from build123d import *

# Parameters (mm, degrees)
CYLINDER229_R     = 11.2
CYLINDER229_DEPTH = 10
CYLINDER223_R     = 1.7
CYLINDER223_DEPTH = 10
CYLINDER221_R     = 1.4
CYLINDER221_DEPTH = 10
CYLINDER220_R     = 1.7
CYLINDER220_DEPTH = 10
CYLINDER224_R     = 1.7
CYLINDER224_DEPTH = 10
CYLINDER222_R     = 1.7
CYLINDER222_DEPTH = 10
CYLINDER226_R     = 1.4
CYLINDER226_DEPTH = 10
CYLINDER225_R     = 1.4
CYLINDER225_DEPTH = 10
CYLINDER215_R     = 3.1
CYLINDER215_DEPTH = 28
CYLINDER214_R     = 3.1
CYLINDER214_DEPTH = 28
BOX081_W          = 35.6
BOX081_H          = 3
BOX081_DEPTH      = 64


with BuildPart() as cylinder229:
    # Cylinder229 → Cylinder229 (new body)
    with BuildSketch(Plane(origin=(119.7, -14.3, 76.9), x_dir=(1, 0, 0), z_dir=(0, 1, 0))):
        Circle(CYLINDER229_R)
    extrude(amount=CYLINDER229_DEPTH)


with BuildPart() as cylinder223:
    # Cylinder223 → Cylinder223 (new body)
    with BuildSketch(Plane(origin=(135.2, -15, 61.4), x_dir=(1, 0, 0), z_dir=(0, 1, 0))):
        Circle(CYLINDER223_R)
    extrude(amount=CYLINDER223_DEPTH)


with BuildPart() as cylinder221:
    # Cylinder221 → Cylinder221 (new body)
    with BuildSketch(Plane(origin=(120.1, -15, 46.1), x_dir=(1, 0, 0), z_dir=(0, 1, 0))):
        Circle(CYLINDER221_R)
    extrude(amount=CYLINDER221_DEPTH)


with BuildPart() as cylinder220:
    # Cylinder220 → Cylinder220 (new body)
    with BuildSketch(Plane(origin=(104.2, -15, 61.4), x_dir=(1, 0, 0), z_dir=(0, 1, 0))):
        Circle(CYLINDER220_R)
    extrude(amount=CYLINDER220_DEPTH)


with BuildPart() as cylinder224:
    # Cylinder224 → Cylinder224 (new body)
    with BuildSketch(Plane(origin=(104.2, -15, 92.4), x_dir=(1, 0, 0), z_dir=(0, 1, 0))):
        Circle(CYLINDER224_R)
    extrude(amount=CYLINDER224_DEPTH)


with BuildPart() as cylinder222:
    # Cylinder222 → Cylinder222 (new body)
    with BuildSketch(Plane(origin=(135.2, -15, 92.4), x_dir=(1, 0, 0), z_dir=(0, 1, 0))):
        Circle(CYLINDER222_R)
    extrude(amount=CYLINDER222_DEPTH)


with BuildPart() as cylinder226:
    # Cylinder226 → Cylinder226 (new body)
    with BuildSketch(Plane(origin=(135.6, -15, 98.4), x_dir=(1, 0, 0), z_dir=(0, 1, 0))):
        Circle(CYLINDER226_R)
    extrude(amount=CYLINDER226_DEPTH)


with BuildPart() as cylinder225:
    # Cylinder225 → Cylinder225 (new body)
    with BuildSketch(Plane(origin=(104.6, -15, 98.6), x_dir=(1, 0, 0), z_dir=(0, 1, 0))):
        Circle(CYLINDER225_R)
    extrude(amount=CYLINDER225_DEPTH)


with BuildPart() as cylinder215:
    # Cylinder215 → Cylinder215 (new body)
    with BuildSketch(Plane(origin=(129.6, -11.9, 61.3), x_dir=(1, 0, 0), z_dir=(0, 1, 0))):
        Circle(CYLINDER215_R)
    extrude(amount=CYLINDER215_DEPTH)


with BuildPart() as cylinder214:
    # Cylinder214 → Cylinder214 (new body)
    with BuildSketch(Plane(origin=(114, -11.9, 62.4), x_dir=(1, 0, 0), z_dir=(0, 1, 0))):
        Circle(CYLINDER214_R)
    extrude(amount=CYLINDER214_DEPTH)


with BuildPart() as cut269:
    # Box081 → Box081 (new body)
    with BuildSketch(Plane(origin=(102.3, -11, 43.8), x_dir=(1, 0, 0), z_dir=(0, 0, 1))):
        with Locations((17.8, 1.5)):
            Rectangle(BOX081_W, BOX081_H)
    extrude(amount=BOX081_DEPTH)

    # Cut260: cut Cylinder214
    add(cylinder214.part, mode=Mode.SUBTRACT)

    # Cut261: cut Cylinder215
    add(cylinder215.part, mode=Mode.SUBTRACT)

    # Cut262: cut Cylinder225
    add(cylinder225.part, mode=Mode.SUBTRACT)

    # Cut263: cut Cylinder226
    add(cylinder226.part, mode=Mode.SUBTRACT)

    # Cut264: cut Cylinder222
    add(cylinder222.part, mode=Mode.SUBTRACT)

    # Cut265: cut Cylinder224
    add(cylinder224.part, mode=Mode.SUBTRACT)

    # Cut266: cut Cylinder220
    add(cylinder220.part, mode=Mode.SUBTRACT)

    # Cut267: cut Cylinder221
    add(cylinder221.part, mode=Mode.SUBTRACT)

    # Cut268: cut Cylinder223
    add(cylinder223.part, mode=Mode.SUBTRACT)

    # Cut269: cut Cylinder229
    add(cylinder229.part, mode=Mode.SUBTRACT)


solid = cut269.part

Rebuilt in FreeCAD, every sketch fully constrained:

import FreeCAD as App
import Part
import Sketcher

V = App.Vector
Q = App.Units.Quantity

doc = App.newDocument("Part")
params = doc.addObject("Spreadsheet::Sheet", "Params")
for row, (alias, value) in enumerate([
    ("sketch1_diameter", "22.4 mm"),
    ("pad1_length", "10 mm"),
    ("sketch2_diameter", "3.4 mm"),
    ("pad2_length", "10 mm"),
    ("sketch3_diameter", "2.8 mm"),
    ("pad3_length", "10 mm"),
    ("sketch4_diameter", "3.4 mm"),
    ("pad4_length", "10 mm"),
    ("sketch5_diameter", "3.4 mm"),
    ("pad5_length", "10 mm"),
    ("sketch6_diameter", "3.4 mm"),
    ("pad6_length", "10 mm"),
    ("sketch7_diameter", "2.8 mm"),
    ("pad7_length", "10 mm"),
    ("sketch8_diameter", "2.8 mm"),
    ("pad8_length", "10 mm"),
    ("sketch9_diameter", "6.2 mm"),
    ("pad9_length", "28 mm"),
    ("sketch10_diameter", "6.2 mm"),
    ("pad10_length", "28 mm"),
    ("sketch11_height", "3 mm"),
    ("sketch11_width", "35.6 mm"),
    ("pad11_length", "64 mm"),
], start=1):
    params.set(f"A{row}", alias)
    params.set(f"B{row}", "=" + value)
    params.setAlias(f"B{row}", alias)

body = doc.addObject("PartDesign::Body", "Body")

sketch1 = doc.addObject("Sketcher::SketchObject", "Sketch")
body.addObject(sketch1)
sketch1.AttachmentSupport = (doc.XZ_Plane, [""])
sketch1.MapMode = "FlatFace"
sketch1.AttachmentOffset = App.Placement(V(0, 0, 14.3), App.Rotation())
sketch1.addGeometry(Part.Circle(V(120, 77, 0), V(0, 0, 1), 11), False)
sketch1.addConstraint([
    Sketcher.Constraint("Diameter", 0, Q("22.4 mm")),
    Sketcher.Constraint("DistanceX", -1, 1, 0, 3, Q("119.7 mm")),
    Sketcher.Constraint("DistanceY", -1, 1, 0, 3, Q("76.9 mm")),
])
sketch1.setExpression("Constraints[0]", "Params.sketch1_diameter")
pad1 = doc.addObject("PartDesign::Pad", "Pad")
body.addObject(pad1)
pad1.Profile = sketch1
pad1.setExpression("Length", "Params.pad1_length")
pad1.Reversed = True
body2 = doc.addObject("PartDesign::Body", "Body001")

sketch2 = doc.addObject("Sketcher::SketchObject", "Sketch001")
body2.addObject(sketch2)
sketch2.AttachmentSupport = (doc.getObject("XZ_Plane001"), [""])
sketch2.MapMode = "FlatFace"
sketch2.AttachmentOffset = App.Placement(V(0, 0, 15), App.Rotation())
sketch2.addGeometry(Part.Circle(V(135.2, 61.4, 0), V(0, 0, 1), 1.7), False)
sketch2.addConstraint([
    Sketcher.Constraint("Diameter", 0, Q("3.4 mm")),
    Sketcher.Constraint("DistanceX", -1, 1, 0, 3, Q("135.2 mm")),
    Sketcher.Constraint("DistanceY", -1, 1, 0, 3, Q("61.4 mm")),
])
sketch2.setExpression("Constraints[0]", "Params.sketch2_diameter")
pad2 = doc.addObject("PartDesign::Pad", "Pad001")
body2.addObject(pad2)
pad2.Profile = sketch2
pad2.setExpression("Length", "Params.pad2_length")
pad2.Reversed = True
body3 = doc.addObject("PartDesign::Body", "Body002")

sketch3 = doc.addObject("Sketcher::SketchObject", "Sketch002")
body3.addObject(sketch3)
sketch3.AttachmentSupport = (doc.getObject("XZ_Plane002"), [""])
sketch3.MapMode = "FlatFace"
sketch3.AttachmentOffset = App.Placement(V(0, 0, 15), App.Rotation())
sketch3.addGeometry(Part.Circle(V(120.1, 46.1, 0), V(0, 0, 1), 1.4), False)
sketch3.addConstraint([
    Sketcher.Constraint("Diameter", 0, Q("2.8 mm")),
    Sketcher.Constraint("DistanceX", -1, 1, 0, 3, Q("120.1 mm")),
    Sketcher.Constraint("DistanceY", -1, 1, 0, 3, Q("46.1 mm")),
])
sketch3.setExpression("Constraints[0]", "Params.sketch3_diameter")
pad3 = doc.addObject("PartDesign::Pad", "Pad002")
body3.addObject(pad3)
pad3.Profile = sketch3
pad3.setExpression("Length", "Params.pad3_length")
pad3.Reversed = True
body4 = doc.addObject("PartDesign::Body", "Body003")

sketch4 = doc.addObject("Sketcher::SketchObject", "Sketch003")
body4.addObject(sketch4)
sketch4.AttachmentSupport = (doc.getObject("XZ_Plane003"), [""])
sketch4.MapMode = "FlatFace"
sketch4.AttachmentOffset = App.Placement(V(0, 0, 15), App.Rotation())
sketch4.addGeometry(Part.Circle(V(104.2, 61.4, 0), V(0, 0, 1), 1.7), False)
sketch4.addConstraint([
    Sketcher.Constraint("Diameter", 0, Q("3.4 mm")),
    Sketcher.Constraint("DistanceX", -1, 1, 0, 3, Q("104.2 mm")),
    Sketcher.Constraint("DistanceY", -1, 1, 0, 3, Q("61.4 mm")),
])
sketch4.setExpression("Constraints[0]", "Params.sketch4_diameter")
pad4 = doc.addObject("PartDesign::Pad", "Pad003")
body4.addObject(pad4)
pad4.Profile = sketch4
pad4.setExpression("Length", "Params.pad4_length")
pad4.Reversed = True
body5 = doc.addObject("PartDesign::Body", "Body004")

sketch5 = doc.addObject("Sketcher::SketchObject", "Sketch004")
body5.addObject(sketch5)
sketch5.AttachmentSupport = (doc.getObject("XZ_Plane004"), [""])
sketch5.MapMode = "FlatFace"
sketch5.AttachmentOffset = App.Placement(V(0, 0, 15), App.Rotation())
sketch5.addGeometry(Part.Circle(V(104.2, 92.4, 0), V(0, 0, 1), 1.7), False)
sketch5.addConstraint([
    Sketcher.Constraint("Diameter", 0, Q("3.4 mm")),
    Sketcher.Constraint("DistanceX", -1, 1, 0, 3, Q("104.2 mm")),
    Sketcher.Constraint("DistanceY", -1, 1, 0, 3, Q("92.4 mm")),
])
sketch5.setExpression("Constraints[0]", "Params.sketch5_diameter")
pad5 = doc.addObject("PartDesign::Pad", "Pad004")
body5.addObject(pad5)
pad5.Profile = sketch5
pad5.setExpression("Length", "Params.pad5_length")
pad5.Reversed = True
body6 = doc.addObject("PartDesign::Body", "Body005")

sketch6 = doc.addObject("Sketcher::SketchObject", "Sketch005")
body6.addObject(sketch6)
sketch6.AttachmentSupport = (doc.getObject("XZ_Plane005"), [""])
sketch6.MapMode = "FlatFace"
sketch6.AttachmentOffset = App.Placement(V(0, 0, 15), App.Rotation())
sketch6.addGeometry(Part.Circle(V(135.2, 92.4, 0), V(0, 0, 1), 1.7), False)
sketch6.addConstraint([
    Sketcher.Constraint("Diameter", 0, Q("3.4 mm")),
    Sketcher.Constraint("DistanceX", -1, 1, 0, 3, Q("135.2 mm")),
    Sketcher.Constraint("DistanceY", -1, 1, 0, 3, Q("92.4 mm")),
])
sketch6.setExpression("Constraints[0]", "Params.sketch6_diameter")
pad6 = doc.addObject("PartDesign::Pad", "Pad005")
body6.addObject(pad6)
pad6.Profile = sketch6
pad6.setExpression("Length", "Params.pad6_length")
pad6.Reversed = True
body7 = doc.addObject("PartDesign::Body", "Body006")

sketch7 = doc.addObject("Sketcher::SketchObject", "Sketch006")
body7.addObject(sketch7)
sketch7.AttachmentSupport = (doc.getObject("XZ_Plane006"), [""])
sketch7.MapMode = "FlatFace"
sketch7.AttachmentOffset = App.Placement(V(0, 0, 15), App.Rotation())
sketch7.addGeometry(Part.Circle(V(135.6, 98.4, 0), V(0, 0, 1), 1.4), False)
sketch7.addConstraint([
    Sketcher.Constraint("Diameter", 0, Q("2.8 mm")),
    Sketcher.Constraint("DistanceX", -1, 1, 0, 3, Q("135.6 mm")),
    Sketcher.Constraint("DistanceY", -1, 1, 0, 3, Q("98.4 mm")),
])
sketch7.setExpression("Constraints[0]", "Params.sketch7_diameter")
pad7 = doc.addObject("PartDesign::Pad", "Pad006")
body7.addObject(pad7)
pad7.Profile = sketch7
pad7.setExpression("Length", "Params.pad7_length")
pad7.Reversed = True
body8 = doc.addObject("PartDesign::Body", "Body007")

sketch8 = doc.addObject("Sketcher::SketchObject", "Sketch007")
body8.addObject(sketch8)
sketch8.AttachmentSupport = (doc.getObject("XZ_Plane007"), [""])
sketch8.MapMode = "FlatFace"
sketch8.AttachmentOffset = App.Placement(V(0, 0, 15), App.Rotation())
sketch8.addGeometry(Part.Circle(V(104.6, 98.6, 0), V(0, 0, 1), 1.4), False)
sketch8.addConstraint([
    Sketcher.Constraint("Diameter", 0, Q("2.8 mm")),
    Sketcher.Constraint("DistanceX", -1, 1, 0, 3, Q("104.6 mm")),
    Sketcher.Constraint("DistanceY", -1, 1, 0, 3, Q("98.6 mm")),
])
sketch8.setExpression("Constraints[0]", "Params.sketch8_diameter")
pad8 = doc.addObject("PartDesign::Pad", "Pad007")
body8.addObject(pad8)
pad8.Profile = sketch8
pad8.setExpression("Length", "Params.pad8_length")
pad8.Reversed = True
body9 = doc.addObject("PartDesign::Body", "Body008")

sketch9 = doc.addObject("Sketcher::SketchObject", "Sketch008")
body9.addObject(sketch9)
sketch9.AttachmentSupport = (doc.getObject("XZ_Plane008"), [""])
sketch9.MapMode = "FlatFace"
sketch9.AttachmentOffset = App.Placement(V(0, 0, 11.9), App.Rotation())
sketch9.addGeometry(Part.Circle(V(129.6, 61.3, 0), V(0, 0, 1), 3.1), False)
sketch9.addConstraint([
    Sketcher.Constraint("Diameter", 0, Q("6.2 mm")),
    Sketcher.Constraint("DistanceX", -1, 1, 0, 3, Q("129.6 mm")),
    Sketcher.Constraint("DistanceY", -1, 1, 0, 3, Q("61.3 mm")),
])
sketch9.setExpression("Constraints[0]", "Params.sketch9_diameter")
pad9 = doc.addObject("PartDesign::Pad", "Pad008")
body9.addObject(pad9)
pad9.Profile = sketch9
pad9.setExpression("Length", "Params.pad9_length")
pad9.Reversed = True
body10 = doc.addObject("PartDesign::Body", "Body009")

sketch10 = doc.addObject("Sketcher::SketchObject", "Sketch009")
body10.addObject(sketch10)
sketch10.AttachmentSupport = (doc.getObject("XZ_Plane009"), [""])
sketch10.MapMode = "FlatFace"
sketch10.AttachmentOffset = App.Placement(V(0, 0, 11.9), App.Rotation())
sketch10.addGeometry(Part.Circle(V(114, 62.4, 0), V(0, 0, 1), 3.1), False)
sketch10.addConstraint([
    Sketcher.Constraint("Diameter", 0, Q("6.2 mm")),
    Sketcher.Constraint("DistanceX", -1, 1, 0, 3, Q("114 mm")),
    Sketcher.Constraint("DistanceY", -1, 1, 0, 3, Q("62.4 mm")),
])
sketch10.setExpression("Constraints[0]", "Params.sketch10_diameter")
pad10 = doc.addObject("PartDesign::Pad", "Pad009")
body10.addObject(pad10)
pad10.Profile = sketch10
pad10.setExpression("Length", "Params.pad10_length")
pad10.Reversed = True
body11 = doc.addObject("PartDesign::Body", "Body010")

sketch11 = doc.addObject("Sketcher::SketchObject", "Sketch010")
body11.addObject(sketch11)
sketch11.AttachmentSupport = (doc.getObject("XY_Plane010"), [""])
sketch11.MapMode = "FlatFace"
sketch11.AttachmentOffset = App.Placement(V(0, 0, 43.8), App.Rotation())
sketch11.addGeometry([
    Part.LineSegment(V(102.3, -8, 0), V(102.3, -11, 0)),
    Part.LineSegment(V(102.3, -11, 0), V(137.9, -11, 0)),
    Part.LineSegment(V(137.9, -11, 0), V(137.9, -8, 0)),
    Part.LineSegment(V(137.9, -8, 0), V(102.3, -8, 0)),
], False)
sketch11.addConstraint([
    Sketcher.Constraint("Coincident", 0, 2, 1, 1),
    Sketcher.Constraint("Coincident", 1, 2, 2, 1),
    Sketcher.Constraint("Coincident", 2, 2, 3, 1),
    Sketcher.Constraint("Coincident", 3, 2, 0, 1),
    Sketcher.Constraint("Vertical", 0),
    Sketcher.Constraint("Horizontal", 1),
    Sketcher.Constraint("Vertical", 2),
    Sketcher.Constraint("Horizontal", 3),
    Sketcher.Constraint("DistanceY", 0, 2, 0, 1, Q("3 mm")),
    Sketcher.Constraint("DistanceX", 1, 1, 1, 2, Q("35.6 mm")),
    Sketcher.Constraint("DistanceY", 0, 2, -1, 1, Q("11 mm")),
    Sketcher.Constraint("DistanceX", -1, 1, 0, 2, Q("102.3 mm")),
])
sketch11.setExpression("Constraints[8]", "Params.sketch11_height")
sketch11.setExpression("Constraints[9]", "Params.sketch11_width")
pad11 = doc.addObject("PartDesign::Pad", "Pad010")
body11.addObject(pad11)
pad11.Profile = sketch11
pad11.setExpression("Length", "Params.pad11_length")
doc.recompute()

boolean = doc.addObject("PartDesign::Boolean", "Boolean")
body11.addObject(boolean)
boolean.Type = "Cut"
boolean.addObjects([body10])
doc.recompute()

boolean2 = doc.addObject("PartDesign::Boolean", "Boolean001")
body11.addObject(boolean2)
boolean2.Type = "Cut"
boolean2.addObjects([body9])
doc.recompute()

boolean3 = doc.addObject("PartDesign::Boolean", "Boolean002")
body11.addObject(boolean3)
boolean3.Type = "Cut"
boolean3.addObjects([body8])
doc.recompute()

boolean4 = doc.addObject("PartDesign::Boolean", "Boolean003")
body11.addObject(boolean4)
boolean4.Type = "Cut"
boolean4.addObjects([body7])
doc.recompute()

boolean5 = doc.addObject("PartDesign::Boolean", "Boolean004")
body11.addObject(boolean5)
boolean5.Type = "Cut"
boolean5.addObjects([body6])
doc.recompute()

boolean6 = doc.addObject("PartDesign::Boolean", "Boolean005")
body11.addObject(boolean6)
boolean6.Type = "Cut"
boolean6.addObjects([body5])
doc.recompute()

boolean7 = doc.addObject("PartDesign::Boolean", "Boolean006")
body11.addObject(boolean7)
boolean7.Type = "Cut"
boolean7.addObjects([body4])
doc.recompute()

boolean8 = doc.addObject("PartDesign::Boolean", "Boolean007")
body11.addObject(boolean8)
boolean8.Type = "Cut"
boolean8.addObjects([body3])
doc.recompute()

boolean9 = doc.addObject("PartDesign::Boolean", "Boolean008")
body11.addObject(boolean9)
boolean9.Type = "Cut"
boolean9.addObjects([body2])
doc.recompute()

boolean10 = doc.addObject("PartDesign::Boolean", "Boolean009")
body11.addObject(boolean10)
boolean10.Type = "Cut"
boolean10.addObjects([body])

doc.recompute()
